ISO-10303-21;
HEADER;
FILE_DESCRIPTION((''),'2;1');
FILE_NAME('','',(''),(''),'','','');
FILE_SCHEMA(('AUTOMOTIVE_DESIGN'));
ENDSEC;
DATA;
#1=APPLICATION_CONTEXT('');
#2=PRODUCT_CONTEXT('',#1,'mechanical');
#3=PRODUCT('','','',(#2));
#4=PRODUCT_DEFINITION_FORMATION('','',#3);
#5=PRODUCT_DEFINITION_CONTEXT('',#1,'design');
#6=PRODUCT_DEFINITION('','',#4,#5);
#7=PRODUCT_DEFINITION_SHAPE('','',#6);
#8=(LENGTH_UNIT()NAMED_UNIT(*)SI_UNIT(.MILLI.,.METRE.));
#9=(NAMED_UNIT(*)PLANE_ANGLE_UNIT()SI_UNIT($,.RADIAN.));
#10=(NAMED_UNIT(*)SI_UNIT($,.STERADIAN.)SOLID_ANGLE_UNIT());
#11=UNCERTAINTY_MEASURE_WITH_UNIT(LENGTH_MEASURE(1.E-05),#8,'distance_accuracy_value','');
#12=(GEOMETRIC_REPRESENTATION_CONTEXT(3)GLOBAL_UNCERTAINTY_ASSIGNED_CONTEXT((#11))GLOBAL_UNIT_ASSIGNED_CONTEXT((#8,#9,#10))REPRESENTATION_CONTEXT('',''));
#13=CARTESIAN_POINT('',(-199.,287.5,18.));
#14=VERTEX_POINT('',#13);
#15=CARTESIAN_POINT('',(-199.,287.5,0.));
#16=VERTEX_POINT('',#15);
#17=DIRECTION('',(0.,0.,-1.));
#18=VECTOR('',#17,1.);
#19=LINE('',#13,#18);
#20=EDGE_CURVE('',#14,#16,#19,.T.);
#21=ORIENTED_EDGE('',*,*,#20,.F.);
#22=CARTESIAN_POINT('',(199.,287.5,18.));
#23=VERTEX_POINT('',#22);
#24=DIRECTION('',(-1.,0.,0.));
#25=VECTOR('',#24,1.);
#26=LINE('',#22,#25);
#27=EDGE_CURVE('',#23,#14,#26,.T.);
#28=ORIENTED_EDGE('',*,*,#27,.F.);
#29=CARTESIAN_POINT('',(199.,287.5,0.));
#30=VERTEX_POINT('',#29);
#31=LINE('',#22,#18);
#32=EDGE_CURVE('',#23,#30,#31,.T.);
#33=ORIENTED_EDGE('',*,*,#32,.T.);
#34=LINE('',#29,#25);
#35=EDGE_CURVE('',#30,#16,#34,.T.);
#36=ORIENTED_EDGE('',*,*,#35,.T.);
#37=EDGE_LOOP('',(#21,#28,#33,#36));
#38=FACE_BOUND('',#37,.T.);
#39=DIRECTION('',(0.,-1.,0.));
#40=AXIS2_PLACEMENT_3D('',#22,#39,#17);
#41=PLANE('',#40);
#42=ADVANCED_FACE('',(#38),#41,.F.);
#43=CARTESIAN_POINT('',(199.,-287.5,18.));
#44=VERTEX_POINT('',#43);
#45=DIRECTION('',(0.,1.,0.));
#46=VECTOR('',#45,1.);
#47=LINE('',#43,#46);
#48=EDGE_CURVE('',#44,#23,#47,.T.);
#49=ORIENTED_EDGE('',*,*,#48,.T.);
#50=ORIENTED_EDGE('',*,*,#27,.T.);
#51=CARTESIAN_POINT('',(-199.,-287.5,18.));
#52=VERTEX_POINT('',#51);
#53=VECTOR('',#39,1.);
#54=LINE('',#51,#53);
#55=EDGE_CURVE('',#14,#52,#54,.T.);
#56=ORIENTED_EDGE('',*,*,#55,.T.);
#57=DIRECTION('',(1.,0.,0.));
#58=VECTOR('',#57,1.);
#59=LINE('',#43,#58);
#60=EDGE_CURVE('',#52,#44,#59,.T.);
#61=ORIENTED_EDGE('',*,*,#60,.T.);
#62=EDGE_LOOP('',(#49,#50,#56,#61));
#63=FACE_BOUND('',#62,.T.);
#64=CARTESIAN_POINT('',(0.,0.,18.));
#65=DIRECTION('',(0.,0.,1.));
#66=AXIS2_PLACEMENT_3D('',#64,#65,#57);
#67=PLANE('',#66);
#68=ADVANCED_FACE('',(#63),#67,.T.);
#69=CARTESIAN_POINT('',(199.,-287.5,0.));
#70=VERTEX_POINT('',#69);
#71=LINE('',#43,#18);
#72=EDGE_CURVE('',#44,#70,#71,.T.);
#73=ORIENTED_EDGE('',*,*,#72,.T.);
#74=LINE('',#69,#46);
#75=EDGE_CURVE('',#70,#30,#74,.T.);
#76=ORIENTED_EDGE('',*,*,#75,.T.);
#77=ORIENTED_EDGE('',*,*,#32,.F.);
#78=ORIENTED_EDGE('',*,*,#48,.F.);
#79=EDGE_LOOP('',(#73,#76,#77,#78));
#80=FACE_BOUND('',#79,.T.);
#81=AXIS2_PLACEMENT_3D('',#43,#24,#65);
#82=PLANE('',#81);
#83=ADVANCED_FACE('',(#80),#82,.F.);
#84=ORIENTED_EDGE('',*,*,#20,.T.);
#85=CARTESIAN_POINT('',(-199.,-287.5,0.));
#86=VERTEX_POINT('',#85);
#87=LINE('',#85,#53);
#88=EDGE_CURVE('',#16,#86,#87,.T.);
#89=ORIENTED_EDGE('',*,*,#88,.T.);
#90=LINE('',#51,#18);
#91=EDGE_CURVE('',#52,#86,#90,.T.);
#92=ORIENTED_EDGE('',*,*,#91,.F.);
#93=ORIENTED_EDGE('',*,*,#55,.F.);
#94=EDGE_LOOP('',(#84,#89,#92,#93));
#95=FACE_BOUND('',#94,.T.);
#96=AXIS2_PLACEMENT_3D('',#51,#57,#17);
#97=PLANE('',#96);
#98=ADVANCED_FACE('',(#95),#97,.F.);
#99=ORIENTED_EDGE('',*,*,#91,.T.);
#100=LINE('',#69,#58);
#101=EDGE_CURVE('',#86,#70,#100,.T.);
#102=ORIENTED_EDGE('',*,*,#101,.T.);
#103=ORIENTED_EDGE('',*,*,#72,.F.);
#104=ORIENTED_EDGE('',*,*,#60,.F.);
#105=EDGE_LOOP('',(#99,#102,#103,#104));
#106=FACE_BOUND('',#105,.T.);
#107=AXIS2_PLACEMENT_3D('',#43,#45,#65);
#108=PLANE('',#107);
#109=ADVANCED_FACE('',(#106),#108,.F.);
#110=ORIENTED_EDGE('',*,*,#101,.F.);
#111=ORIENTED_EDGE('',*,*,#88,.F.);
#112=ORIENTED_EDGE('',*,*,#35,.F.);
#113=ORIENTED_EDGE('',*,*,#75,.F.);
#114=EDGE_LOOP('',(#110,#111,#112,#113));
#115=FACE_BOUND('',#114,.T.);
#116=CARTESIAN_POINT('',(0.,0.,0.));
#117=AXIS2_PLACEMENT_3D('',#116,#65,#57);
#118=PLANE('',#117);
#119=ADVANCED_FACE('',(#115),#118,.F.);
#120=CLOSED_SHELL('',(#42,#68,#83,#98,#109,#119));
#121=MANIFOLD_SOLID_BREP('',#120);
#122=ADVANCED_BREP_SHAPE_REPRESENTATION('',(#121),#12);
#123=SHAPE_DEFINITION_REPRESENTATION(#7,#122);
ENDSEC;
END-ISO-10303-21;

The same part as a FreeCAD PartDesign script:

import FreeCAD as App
import Part
import Sketcher
from FreeCAD import Vector
Q = App.Units.Quantity

doc = App.newDocument("Part")
body = doc.addObject("PartDesign::Body", "Body")

sketch1 = body.newObject("Sketcher::SketchObject", "Sketch")
sketch1.AttachmentSupport = (doc.getObject("XY_Plane"), [""])
sketch1.MapMode = "FlatFace"
sketch1.addGeometry([
    Part.LineSegment(Vector(-199, 288, 0), Vector(-199, -288, 0)),
    Part.LineSegment(Vector(-199, -288, 0), Vector(199, -288, 0)),
    Part.LineSegment(Vector(199, -288, 0), Vector(199, 288, 0)),
    Part.LineSegment(Vector(199, 288, 0), Vector(-199, 288, 0)),
], False)
sketch1.addConstraint([
    Sketcher.Constraint("Coincident", 0, 2, 1, 1),
    Sketcher.Constraint("Coincident", 1, 2, 2, 1),
    Sketcher.Constraint("Coincident", 2, 2, 3, 1),
    Sketcher.Constraint("Coincident", 3, 2, 0, 1),
    Sketcher.Constraint("Vertical", 0),
    Sketcher.Constraint("Horizontal", 1),
    Sketcher.Constraint("Vertical", 2),
    Sketcher.Constraint("Horizontal", 3),
    Sketcher.Constraint("Symmetric", 0, 2, 2, 2, -1, 1),
    Sketcher.Constraint("DistanceX", 1, 1, 1, 2, Q("398 mm")),
    Sketcher.Constraint("DistanceY", 0, 2, 0, 1, Q("575 mm")),
])
pad1 = body.newObject("PartDesign::Pad", "Pad")
pad1.Profile = sketch1
pad1.Length = 18

doc.recompute()
